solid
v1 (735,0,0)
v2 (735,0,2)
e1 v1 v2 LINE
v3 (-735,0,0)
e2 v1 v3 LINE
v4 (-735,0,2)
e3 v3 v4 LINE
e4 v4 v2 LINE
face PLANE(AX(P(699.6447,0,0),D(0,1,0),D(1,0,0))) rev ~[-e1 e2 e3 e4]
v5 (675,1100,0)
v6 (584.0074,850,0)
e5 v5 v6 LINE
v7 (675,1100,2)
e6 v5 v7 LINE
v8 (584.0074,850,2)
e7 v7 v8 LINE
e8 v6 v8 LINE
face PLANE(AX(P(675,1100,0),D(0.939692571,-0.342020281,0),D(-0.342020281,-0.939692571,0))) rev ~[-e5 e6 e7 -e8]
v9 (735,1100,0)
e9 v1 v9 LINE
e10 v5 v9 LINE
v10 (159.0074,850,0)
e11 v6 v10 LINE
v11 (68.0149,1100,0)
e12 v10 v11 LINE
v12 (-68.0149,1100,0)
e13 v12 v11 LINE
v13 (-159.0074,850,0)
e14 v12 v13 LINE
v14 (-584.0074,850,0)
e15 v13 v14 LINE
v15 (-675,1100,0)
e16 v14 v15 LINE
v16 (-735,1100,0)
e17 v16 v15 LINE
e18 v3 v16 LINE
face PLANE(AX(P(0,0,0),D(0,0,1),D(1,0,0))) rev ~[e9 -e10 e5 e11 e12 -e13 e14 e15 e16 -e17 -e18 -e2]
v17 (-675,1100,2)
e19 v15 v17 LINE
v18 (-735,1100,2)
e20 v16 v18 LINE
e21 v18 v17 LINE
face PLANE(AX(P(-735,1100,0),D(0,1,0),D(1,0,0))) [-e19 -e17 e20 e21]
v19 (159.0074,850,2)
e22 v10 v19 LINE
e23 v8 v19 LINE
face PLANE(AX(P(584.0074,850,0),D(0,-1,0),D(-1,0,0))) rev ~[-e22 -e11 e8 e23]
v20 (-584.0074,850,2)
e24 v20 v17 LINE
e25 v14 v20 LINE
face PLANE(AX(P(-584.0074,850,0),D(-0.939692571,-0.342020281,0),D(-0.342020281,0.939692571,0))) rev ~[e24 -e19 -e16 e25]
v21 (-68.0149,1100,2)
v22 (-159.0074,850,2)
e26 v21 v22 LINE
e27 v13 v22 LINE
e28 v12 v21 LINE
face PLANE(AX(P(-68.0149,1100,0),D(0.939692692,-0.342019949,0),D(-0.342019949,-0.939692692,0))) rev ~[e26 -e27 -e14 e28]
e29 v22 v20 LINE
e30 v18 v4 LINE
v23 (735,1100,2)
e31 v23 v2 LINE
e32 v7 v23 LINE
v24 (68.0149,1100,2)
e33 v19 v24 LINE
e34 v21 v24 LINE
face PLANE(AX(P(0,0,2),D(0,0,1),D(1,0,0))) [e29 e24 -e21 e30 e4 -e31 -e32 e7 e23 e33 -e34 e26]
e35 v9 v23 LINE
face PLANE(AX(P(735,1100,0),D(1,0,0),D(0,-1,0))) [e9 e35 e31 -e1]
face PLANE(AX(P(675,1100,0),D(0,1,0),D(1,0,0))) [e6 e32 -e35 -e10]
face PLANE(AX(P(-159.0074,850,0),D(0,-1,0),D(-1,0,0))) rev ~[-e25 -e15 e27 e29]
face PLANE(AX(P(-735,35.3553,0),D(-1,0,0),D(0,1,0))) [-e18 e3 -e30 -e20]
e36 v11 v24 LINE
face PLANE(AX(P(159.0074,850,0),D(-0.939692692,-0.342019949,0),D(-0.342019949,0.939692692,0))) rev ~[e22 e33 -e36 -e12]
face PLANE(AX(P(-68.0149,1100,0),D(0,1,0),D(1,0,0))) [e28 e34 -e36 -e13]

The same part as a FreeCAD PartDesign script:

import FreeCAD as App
import Part
import Sketcher
Q = App.Units.Quantity

doc = App.newDocument("Part")
params = doc.addObject("Spreadsheet::Sheet", "Params")
for row, (alias, value) in enumerate([
    ("sketch1_width", "60 mm"),
    ("sketch1_width2", "425 mm"),
    ("sketch1_width3", "1470 mm"),
    ("sketch1_height", "1100 mm"),
    ("pad1_length", "2 mm"),
], start=1):
    params.set(f"A{row}", alias)
    params.set(f"B{row}", "=" + value)
    params.setAlias(f"B{row}", alias)

body = doc.addObject("PartDesign::Body", "Body")

# Sketch on XY plane
sketch1 = body.newObject("Sketcher::SketchObject", "Sketch")
sketch1.AttachmentSupport = (doc.getObject("XY_Plane"), [""])
sketch1.MapMode = "FlatFace"
sketch1.addGeometry([
    Part.LineSegment(App.Vector(735, 1100, 0), App.Vector(675, 1100, 0)),  # 0
    Part.LineSegment(App.Vector(675, 1100, 0), App.Vector(584, 850, 0)),  # 1
    Part.LineSegment(App.Vector(584, 850, 0), App.Vector(159, 850, 0)),  # 2
    Part.LineSegment(App.Vector(159, 850, 0), App.Vector(68, 1100, 0)),  # 3
    Part.LineSegment(App.Vector(68, 1100, 0), App.Vector(-68, 1100, 0)),  # 4
    Part.LineSegment(App.Vector(-68, 1100, 0), App.Vector(-159, 850, 0)),  # 5
    Part.LineSegment(App.Vector(-159, 850, 0), App.Vector(-584, 850, 0)),  # 6
    Part.LineSegment(App.Vector(-584, 850, 0), App.Vector(-675, 1100, 0)),  # 7
    Part.LineSegment(App.Vector(-675, 1100, 0), App.Vector(-735, 1100, 0)),  # 8
    Part.LineSegment(App.Vector(-735, 1100, 0), App.Vector(-735, 0, 0)),  # 9
    Part.LineSegment(App.Vector(-735, 0, 0), App.Vector(735, 0, 0)),  # 10
    Part.LineSegment(App.Vector(735, 0, 0), App.Vector(735, 1100, 0)),  # 11
], False)
sketch1.addConstraint([
    Sketcher.Constraint("Coincident", 0, 2, 1, 1),
    Sketcher.Constraint("Coincident", 1, 2, 2, 1),
    Sketcher.Constraint("Coincident", 2, 2, 3, 1),
    Sketcher.Constraint("Coincident", 3, 2, 4, 1),
    Sketcher.Constraint("Coincident", 4, 2, 5, 1),
    Sketcher.Constraint("Coincident", 5, 2, 6, 1),
    Sketcher.Constraint("Coincident", 6, 2, 7, 1),
    Sketcher.Constraint("Coincident", 7, 2, 8, 1),
    Sketcher.Constraint("Coincident", 8, 2, 9, 1),
    Sketcher.Constraint("Coincident", 9, 2, 10, 1),
    Sketcher.Constraint("Coincident", 10, 2, 11, 1),
    Sketcher.Constraint("Coincident", 11, 2, 0, 1),
    Sketcher.Constraint("Horizontal", 0),
    Sketcher.Constraint("Horizontal", 2),
    Sketcher.Constraint("Horizontal", 4),
    Sketcher.Constraint("Horizontal", 6),
    Sketcher.Constraint("Horizontal", 8),
    Sketcher.Constraint("Vertical", 9),
    Sketcher.Constraint("Horizontal", 10),
    Sketcher.Constraint("Vertical", 11),
    Sketcher.Constraint("Symmetric", 9, 2, 10, 2, -1, 1),
    Sketcher.Constraint("Symmetric", 2, 2, 5, 2, -2),
    Sketcher.Constraint("Symmetric", 0, 2, 7, 2, -2),
    Sketcher.Constraint("Parallel", 1, 5),
    Sketcher.Constraint("Parallel", 3, 7),
    Sketcher.Constraint("Horizontal", 0, 2, 3, 2),
    Sketcher.Constraint("Equal", 2, 6),
    Sketcher.Constraint("DistanceX", 0, 2, 0, 1, Q("60 mm")),
    Sketcher.Constraint("DistanceX", 2, 2, 2, 1, Q("425 mm")),
    Sketcher.Constraint("DistanceX", 10, 1, 10, 2, Q("1470 mm")),
    Sketcher.Constraint("DistanceY", 9, 2, 9, 1, Q("1100 mm")),
    Sketcher.Constraint("Angle", 1, Q("-110 deg")),
    Sketcher.Constraint("DistanceY", 1, 2, 0, 2, Q("250 mm")),
])
sketch1.setExpression("Constraints[27]", "Params.sketch1_width")
sketch1.setExpression("Constraints[28]", "Params.sketch1_width2")
sketch1.setExpression("Constraints[29]", "Params.sketch1_width3")
sketch1.setExpression("Constraints[30]", "Params.sketch1_height")
pad1 = body.newObject("PartDesign::Pad", "Pad")
pad1.Profile = sketch1
pad1.setExpression("Length", "Params.pad1_length")

doc.recompute()
